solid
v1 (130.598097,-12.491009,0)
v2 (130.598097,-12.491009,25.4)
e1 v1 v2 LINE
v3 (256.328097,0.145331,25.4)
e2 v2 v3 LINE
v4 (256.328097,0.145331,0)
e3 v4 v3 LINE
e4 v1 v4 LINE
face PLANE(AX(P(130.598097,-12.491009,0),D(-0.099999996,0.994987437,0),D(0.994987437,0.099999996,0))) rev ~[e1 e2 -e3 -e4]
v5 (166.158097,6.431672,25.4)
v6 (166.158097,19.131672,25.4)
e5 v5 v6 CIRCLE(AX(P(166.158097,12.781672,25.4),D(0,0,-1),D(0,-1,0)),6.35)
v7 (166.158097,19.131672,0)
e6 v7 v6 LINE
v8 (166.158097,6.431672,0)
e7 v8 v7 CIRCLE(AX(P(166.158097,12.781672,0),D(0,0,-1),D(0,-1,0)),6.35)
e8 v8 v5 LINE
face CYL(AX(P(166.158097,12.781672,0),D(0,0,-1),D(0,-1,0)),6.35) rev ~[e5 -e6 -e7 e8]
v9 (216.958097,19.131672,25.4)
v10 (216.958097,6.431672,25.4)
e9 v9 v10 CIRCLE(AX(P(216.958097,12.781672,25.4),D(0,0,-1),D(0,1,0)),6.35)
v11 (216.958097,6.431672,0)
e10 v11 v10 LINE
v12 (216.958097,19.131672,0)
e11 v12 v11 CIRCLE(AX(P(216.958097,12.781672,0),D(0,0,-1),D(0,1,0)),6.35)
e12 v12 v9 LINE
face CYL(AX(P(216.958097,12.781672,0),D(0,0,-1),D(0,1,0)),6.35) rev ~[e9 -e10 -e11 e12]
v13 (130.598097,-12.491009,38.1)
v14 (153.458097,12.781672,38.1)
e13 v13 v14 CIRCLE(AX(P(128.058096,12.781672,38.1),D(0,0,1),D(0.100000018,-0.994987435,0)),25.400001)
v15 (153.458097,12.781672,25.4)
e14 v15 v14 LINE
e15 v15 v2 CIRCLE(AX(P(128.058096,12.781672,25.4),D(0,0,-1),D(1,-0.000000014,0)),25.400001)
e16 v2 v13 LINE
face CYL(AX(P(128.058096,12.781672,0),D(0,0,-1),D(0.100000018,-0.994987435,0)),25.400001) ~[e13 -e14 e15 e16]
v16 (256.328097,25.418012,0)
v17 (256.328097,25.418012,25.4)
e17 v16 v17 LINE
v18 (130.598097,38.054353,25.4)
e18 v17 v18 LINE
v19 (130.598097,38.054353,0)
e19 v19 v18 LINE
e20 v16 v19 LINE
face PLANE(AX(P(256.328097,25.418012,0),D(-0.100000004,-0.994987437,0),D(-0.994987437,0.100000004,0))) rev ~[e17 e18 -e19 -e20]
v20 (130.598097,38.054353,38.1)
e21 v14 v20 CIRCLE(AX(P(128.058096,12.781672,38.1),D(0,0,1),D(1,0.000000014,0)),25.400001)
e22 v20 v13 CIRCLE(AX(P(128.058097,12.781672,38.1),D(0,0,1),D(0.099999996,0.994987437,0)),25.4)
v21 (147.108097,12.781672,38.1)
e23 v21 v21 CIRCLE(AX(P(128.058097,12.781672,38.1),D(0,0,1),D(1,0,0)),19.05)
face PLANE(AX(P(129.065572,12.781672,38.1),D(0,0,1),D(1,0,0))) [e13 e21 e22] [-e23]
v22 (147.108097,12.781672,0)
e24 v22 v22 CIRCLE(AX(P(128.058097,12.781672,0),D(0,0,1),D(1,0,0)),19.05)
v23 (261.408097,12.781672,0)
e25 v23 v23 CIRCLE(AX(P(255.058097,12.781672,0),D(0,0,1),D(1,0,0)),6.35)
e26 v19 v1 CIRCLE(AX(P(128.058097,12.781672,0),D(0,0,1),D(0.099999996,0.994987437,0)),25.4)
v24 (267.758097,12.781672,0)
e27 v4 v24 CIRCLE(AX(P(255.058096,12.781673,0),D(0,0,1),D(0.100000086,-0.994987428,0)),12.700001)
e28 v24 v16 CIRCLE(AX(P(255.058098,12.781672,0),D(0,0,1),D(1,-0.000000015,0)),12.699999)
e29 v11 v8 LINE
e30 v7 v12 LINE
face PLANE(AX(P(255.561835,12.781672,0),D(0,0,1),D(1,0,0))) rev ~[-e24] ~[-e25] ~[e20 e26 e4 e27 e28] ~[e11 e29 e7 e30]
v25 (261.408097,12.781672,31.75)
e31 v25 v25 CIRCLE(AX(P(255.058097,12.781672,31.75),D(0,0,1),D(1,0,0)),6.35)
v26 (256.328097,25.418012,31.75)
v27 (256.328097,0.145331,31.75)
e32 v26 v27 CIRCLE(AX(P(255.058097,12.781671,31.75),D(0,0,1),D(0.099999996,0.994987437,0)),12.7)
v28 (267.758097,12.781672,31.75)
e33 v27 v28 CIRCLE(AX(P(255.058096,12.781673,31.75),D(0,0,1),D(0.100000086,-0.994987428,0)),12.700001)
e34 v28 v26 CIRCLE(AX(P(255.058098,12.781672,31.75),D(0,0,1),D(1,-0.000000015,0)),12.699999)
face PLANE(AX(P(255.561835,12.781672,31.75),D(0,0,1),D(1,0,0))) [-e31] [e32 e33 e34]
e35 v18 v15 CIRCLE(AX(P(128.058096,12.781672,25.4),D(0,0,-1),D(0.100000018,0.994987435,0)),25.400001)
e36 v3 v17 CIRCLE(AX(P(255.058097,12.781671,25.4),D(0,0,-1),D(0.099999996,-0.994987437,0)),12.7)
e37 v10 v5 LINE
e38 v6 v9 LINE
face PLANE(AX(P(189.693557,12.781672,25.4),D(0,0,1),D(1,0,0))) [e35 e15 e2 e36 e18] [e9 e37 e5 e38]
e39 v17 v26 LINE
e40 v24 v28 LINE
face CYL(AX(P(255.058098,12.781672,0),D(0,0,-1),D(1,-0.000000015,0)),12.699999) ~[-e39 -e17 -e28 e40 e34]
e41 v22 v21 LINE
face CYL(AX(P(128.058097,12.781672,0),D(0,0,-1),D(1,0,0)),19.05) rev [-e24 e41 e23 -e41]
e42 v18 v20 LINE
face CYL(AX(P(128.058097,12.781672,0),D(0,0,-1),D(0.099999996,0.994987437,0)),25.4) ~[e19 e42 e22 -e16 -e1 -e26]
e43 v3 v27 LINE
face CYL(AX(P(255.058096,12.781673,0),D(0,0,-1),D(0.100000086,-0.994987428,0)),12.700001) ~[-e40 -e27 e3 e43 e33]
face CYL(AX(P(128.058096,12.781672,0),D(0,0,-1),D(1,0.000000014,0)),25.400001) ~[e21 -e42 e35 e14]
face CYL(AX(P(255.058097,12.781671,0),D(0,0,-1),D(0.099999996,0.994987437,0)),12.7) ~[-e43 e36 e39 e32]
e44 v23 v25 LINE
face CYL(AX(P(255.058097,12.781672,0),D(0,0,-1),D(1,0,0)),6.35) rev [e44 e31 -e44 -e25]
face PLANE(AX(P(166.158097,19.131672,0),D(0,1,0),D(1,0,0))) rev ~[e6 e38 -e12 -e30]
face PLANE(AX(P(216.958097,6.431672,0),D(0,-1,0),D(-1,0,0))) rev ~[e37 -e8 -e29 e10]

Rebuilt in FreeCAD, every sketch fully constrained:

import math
import FreeCAD as App
import Part
import Sketcher
from FreeCAD import Vector
Q = App.Units.Quantity

doc = App.newDocument("Part")
body = doc.addObject("PartDesign::Body", "Body")

# Sketch on XY plane
sketch1 = doc.addObject("Sketcher::SketchObject", "Sketch")
body.addObject(sketch1)
sketch1.AttachmentSupport = (doc.XY_Plane, [""])
sketch1.MapMode = "FlatFace"
sketch1.addGeometry([
    Part.ArcOfCircle(Part.Circle(Vector(255.058097, 12.781671, 0), Vector(0, 0, 1), 12.7), math.radians(84.26083), math.radians(275.73917)),  # 0
    Part.LineSegment(Vector(256.328097, 25.418012, 0), Vector(130.598097, 38.054353, 0)),  # 1
    Part.ArcOfCircle(Part.Circle(Vector(128.058097, 12.781672, 0), Vector(0, 0, 1), 25.400001), math.radians(0.000001), math.radians(84.260829)),  # 2
    Part.ArcOfCircle(Part.Circle(Vector(128.058097, 12.781672, 0), Vector(0, 0, 1), 25.400001), math.radians(-84.260829), math.radians(-0.000001)),  # 3
    Part.LineSegment(Vector(130.598097, -12.491009, 0), Vector(256.328097, 0.145331, 0)),  # 4
    Part.LineSegment(Vector(216.958097, 6.431672, 0), Vector(166.158097, 6.431672, 0)),  # 5
    Part.ArcOfCircle(Part.Circle(Vector(166.158097, 12.781672, 0), Vector(0, 0, 1), 6.35), math.radians(90), math.radians(270)),  # 6
    Part.LineSegment(Vector(166.158097, 19.131672, 0), Vector(216.958097, 19.131672, 0)),  # 7
    Part.ArcOfCircle(Part.Circle(Vector(216.958097, 12.781672, 0), Vector(0, 0, 1), 6.35), math.radians(-90), math.radians(90)),  # 8
], False)
sketch1.addConstraint([
    Sketcher.Constraint("Tangent", 0, 1, 1, 1),
    Sketcher.Constraint("Tangent", 1, 2, 2, 2),
    Sketcher.Constraint("Tangent", 2, 1, 3, 2),
    Sketcher.Constraint("Tangent", 3, 1, 4, 1),
    Sketcher.Constraint("Tangent", 4, 2, 0, 2),
    Sketcher.Constraint("Tangent", 5, 2, 6, 2),
    Sketcher.Constraint("Tangent", 6, 1, 7, 1),
    Sketcher.Constraint("Tangent", 7, 2, 8, 2),
    Sketcher.Constraint("Tangent", 8, 1, 5, 1),
    Sketcher.Constraint("Horizontal", 5),
    Sketcher.Constraint("Horizontal", 7),
    Sketcher.Constraint("Equal", 2, 3),
    Sketcher.Constraint("Horizontal", 0, 3, 2, 3),
    Sketcher.Constraint("Horizontal", 3, 3, 6, 3),
    Sketcher.Constraint("Horizontal", 8, 3, 2, 1),
    Sketcher.Constraint("Radius", 2, Q("1 in")),
    Sketcher.Constraint("Radius", 0, Q("0.5 in")),
    Sketcher.Constraint("DistanceX", 5, 2, 5, 1, Q("2 in")),
    Sketcher.Constraint("Radius", 6, Q("0.25 in")),
    Sketcher.Constraint("DistanceX", 2, 3, 0, 3, Q("5 in")),
    Sketcher.Constraint("DistanceX", 2, 3, 6, 3, Q("1.5 in")),
    Sketcher.Constraint("DistanceY", -1, 1, 0, 3, Q("12.781671 mm")),
    Sketcher.Constraint("DistanceX", -1, 1, 0, 3, Q("255.058097 mm")),
])
pad1 = doc.addObject("PartDesign::Pad", "Pad")
body.addObject(pad1)
pad1.Profile = sketch1
pad1.Length = Q("1 in")

# Sketch on XY plane
sketch2 = doc.addObject("Sketcher::SketchObject", "Sketch001")
body.addObject(sketch2)
sketch2.AttachmentSupport = (doc.XY_Plane, [""])
sketch2.MapMode = "FlatFace"
sketch2.addGeometry([
    Part.ArcOfCircle(Part.Circle(Vector(128.058097, 12.781672, 0), Vector(0, 0, 1), 25.400001), math.radians(0.000001), math.radians(84.260829)),
    Part.ArcOfCircle(Part.Circle(Vector(128.058097, 12.781672, 0), Vector(0, 0, 1), 25.4), math.radians(84.26083), math.radians(275.73917)),
    Part.ArcOfCircle(Part.Circle(Vector(128.058097, 12.781672, 0), Vector(0, 0, 1), 25.400001), math.radians(-84.260829), math.radians(-0.000001)),
    Part.Circle(Vector(128.058097, 12.781672, 0), Vector(0, 0, 1), 19.05),
], False)
sketch2.addConstraint([
    Sketcher.Constraint("Tangent", 0, 2, 1, 1),
    Sketcher.Constraint("Tangent", 1, 2, 2, 1),
    Sketcher.Constraint("Tangent", 2, 2, 0, 1),
    Sketcher.Constraint("Coincident", 3, 3, 0, 3),
    Sketcher.Constraint("Horizontal", 3, 3, 2, 2),
    Sketcher.Constraint("Vertical", 0, 2, 1, 2),
    Sketcher.Constraint("Radius", 0, Q("1 in")),
    Sketcher.Constraint("Diameter", 3, Q("1.5 in")),
    Sketcher.Constraint("DistanceX", 2, 3, 0, 2, Q("0.1 in")),
    Sketcher.Constraint("DistanceY", -1, 1, 0, 3, Q("12.781672 mm")),
    Sketcher.Constraint("DistanceX", -1, 1, 0, 3, Q("128.058097 mm")),
])
pad2 = doc.addObject("PartDesign::Pad", "Pad001")
body.addObject(pad2)
pad2.Profile = sketch2
pad2.Length = Q("1.5 in")

# Sketch on XY plane
sketch3 = doc.addObject("Sketcher::SketchObject", "Sketch002")
body.addObject(sketch3)
sketch3.AttachmentSupport = (doc.XY_Plane, [""])
sketch3.MapMode = "FlatFace"
sketch3.addGeometry([
    Part.ArcOfCircle(Part.Circle(Vector(255.058096, 12.781673, 0), Vector(0, 0, 1), 12.700001), math.radians(-84.260825), math.radians(-0.000002)),
    Part.ArcOfCircle(Part.Circle(Vector(255.058098, 12.781672, 0), Vector(0, 0, 1), 12.699999), math.radians(-0.000001), math.radians(84.260832)),
    Part.ArcOfCircle(Part.Circle(Vector(255.058097, 12.781671, 0), Vector(0, 0, 1), 12.7), math.radians(84.26083), math.radians(275.73917)),
    Part.Circle(Vector(255.058097, 12.781672, 0), Vector(0, 0, 1), 6.35),
], False)
sketch3.addConstraint([
    Sketcher.Constraint("Tangent", 0, 2, 1, 1),
    Sketcher.Constraint("Tangent", 1, 2, 2, 1),
    Sketcher.Constraint("Tangent", 2, 2, 0, 1),
    Sketcher.Constraint("Coincident", 3, 3, 0, 3),
    Sketcher.Constraint("Horizontal", 3, 3, 0, 2),
    Sketcher.Constraint("Vertical", 1, 2, 2, 2),
    Sketcher.Constraint("Diameter", 3, Q("0.5 in")),
    Sketcher.Constraint("Radius", 0, Q("0.5 in")),
    Sketcher.Constraint("DistanceX", 0, 3, 1, 2, Q("0.05 in")),
    Sketcher.Constraint("DistanceY", -1, 1, 2, 3, Q("12.781671 mm")),
    Sketcher.Constraint("DistanceX", -1, 1, 0, 3, Q("255.058096 mm")),
])
pad3 = doc.addObject("PartDesign::Pad", "Pad002")
body.addObject(pad3)
pad3.Profile = sketch3
pad3.Length = Q("1.25 in")

doc.recompute()
